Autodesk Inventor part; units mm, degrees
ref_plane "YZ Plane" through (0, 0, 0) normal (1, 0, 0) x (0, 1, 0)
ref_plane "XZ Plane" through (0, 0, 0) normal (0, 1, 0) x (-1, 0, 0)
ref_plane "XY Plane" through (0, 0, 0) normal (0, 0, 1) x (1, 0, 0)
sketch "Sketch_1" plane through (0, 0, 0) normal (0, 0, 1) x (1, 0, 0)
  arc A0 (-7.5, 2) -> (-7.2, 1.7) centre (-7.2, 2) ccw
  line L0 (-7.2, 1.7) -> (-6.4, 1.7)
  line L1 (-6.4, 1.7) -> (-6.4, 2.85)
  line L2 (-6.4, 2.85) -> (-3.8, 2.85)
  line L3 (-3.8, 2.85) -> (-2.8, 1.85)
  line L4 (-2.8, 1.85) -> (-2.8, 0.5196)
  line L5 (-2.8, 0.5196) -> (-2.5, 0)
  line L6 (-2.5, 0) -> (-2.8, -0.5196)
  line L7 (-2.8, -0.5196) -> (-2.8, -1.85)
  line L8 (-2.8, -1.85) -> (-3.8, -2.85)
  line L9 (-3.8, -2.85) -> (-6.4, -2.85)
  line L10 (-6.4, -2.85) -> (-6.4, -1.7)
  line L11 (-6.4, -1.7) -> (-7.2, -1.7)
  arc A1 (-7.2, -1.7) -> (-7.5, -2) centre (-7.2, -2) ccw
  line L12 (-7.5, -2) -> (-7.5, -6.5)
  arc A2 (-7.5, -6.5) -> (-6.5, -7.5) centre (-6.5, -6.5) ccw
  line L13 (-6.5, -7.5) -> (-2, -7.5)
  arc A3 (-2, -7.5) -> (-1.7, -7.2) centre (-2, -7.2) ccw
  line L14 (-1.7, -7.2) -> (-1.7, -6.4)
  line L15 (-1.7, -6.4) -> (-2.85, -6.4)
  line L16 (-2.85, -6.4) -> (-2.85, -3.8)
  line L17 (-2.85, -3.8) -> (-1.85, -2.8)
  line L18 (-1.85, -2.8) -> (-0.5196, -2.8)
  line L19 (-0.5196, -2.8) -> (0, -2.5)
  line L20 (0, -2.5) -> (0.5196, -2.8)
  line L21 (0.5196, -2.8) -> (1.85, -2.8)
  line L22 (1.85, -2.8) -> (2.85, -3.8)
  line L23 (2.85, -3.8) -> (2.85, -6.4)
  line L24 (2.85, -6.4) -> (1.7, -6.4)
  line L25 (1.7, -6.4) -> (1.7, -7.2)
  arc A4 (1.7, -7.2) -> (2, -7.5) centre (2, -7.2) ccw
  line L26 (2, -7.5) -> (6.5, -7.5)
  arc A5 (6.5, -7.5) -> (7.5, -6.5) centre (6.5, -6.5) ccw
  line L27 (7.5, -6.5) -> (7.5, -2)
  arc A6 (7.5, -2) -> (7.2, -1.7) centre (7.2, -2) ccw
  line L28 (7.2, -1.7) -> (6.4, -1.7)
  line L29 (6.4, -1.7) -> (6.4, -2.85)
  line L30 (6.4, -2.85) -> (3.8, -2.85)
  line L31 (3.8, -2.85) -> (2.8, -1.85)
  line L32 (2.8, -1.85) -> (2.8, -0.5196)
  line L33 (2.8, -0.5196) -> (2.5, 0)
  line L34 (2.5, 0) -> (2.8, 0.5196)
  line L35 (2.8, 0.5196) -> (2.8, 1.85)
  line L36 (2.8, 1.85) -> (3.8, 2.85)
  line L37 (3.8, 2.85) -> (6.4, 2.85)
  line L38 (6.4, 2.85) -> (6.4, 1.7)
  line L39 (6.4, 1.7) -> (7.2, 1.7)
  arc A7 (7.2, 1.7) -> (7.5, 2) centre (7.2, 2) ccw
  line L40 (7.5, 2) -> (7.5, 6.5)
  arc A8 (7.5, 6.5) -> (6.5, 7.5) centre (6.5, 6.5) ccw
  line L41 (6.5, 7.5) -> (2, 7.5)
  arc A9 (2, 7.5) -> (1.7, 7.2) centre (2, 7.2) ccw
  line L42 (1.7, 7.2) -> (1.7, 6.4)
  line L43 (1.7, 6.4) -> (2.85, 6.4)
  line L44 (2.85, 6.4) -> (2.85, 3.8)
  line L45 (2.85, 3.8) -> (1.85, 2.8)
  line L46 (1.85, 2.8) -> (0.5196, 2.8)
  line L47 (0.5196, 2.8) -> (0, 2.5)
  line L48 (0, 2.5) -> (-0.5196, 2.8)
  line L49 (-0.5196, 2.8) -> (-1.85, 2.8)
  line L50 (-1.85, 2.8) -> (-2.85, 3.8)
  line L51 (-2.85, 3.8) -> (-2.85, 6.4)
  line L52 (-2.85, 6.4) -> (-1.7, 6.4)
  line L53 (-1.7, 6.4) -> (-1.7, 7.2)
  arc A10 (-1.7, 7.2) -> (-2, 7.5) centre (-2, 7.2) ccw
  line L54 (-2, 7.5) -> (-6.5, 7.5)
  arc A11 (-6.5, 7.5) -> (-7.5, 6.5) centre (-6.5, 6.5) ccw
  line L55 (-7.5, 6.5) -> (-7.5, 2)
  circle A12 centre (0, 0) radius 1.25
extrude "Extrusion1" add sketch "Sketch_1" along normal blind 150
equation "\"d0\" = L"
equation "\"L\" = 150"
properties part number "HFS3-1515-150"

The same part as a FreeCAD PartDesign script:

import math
import FreeCAD as App
import Part
import Sketcher
Q = App.Units.Quantity

doc = App.newDocument("Part")
params = doc.addObject("Spreadsheet::Sheet", "Params")
for row, (alias, value) in enumerate([
    ("sketch1_radius", "1 mm"),
    ("sketch1_diameter", "2.5 mm"),
    ("sketch1_radius2", "0.3 mm"),
    ("sketch1_width", "0.8 mm"),
    ("sketch1_width2", "2.6 mm"),
    ("pad1_length", "150 mm"),
], start=1):
    params.set(f"A{row}", alias)
    params.set(f"B{row}", "=" + value)
    params.setAlias(f"B{row}", alias)

body = doc.addObject("PartDesign::Body", "Body")

# Sketch on XY plane
sketch1 = body.newObject("Sketcher::SketchObject", "Sketch")
sketch1.AttachmentSupport = (doc.getObject("XY_Plane"), [""])
sketch1.MapMode = "FlatFace"
sketch1.addGeometry(Part.LineSegment(App.Vector(-7.5, 6.5, 0), App.Vector(-7.5, 2, 0)), False)
sketch1.addGeometry(Part.ArcOfCircle(Part.Circle(App.Vector(-7.2, 2, 0), App.Vector(0, 0, 1), 0.3), math.radians(180), math.radians(270)), False)
sketch1.addGeometry(Part.LineSegment(App.Vector(-7.2, 1.7, 0), App.Vector(-6.4, 1.7, 0)), False)
sketch1.addGeometry(Part.LineSegment(App.Vector(-6.4, 1.7, 0), App.Vector(-6.4, 2.85, 0)), False)
sketch1.addGeometry(Part.LineSegment(App.Vector(-6.4, 2.85, 0), App.Vector(-3.8, 2.85, 0)), False)
sketch1.addGeometry(Part.LineSegment(App.Vector(-3.8, 2.85, 0), App.Vector(-2.8, 1.85, 0)), False)
sketch1.addGeometry(Part.LineSegment(App.Vector(-2.8, 1.85, 0), App.Vector(-2.8, 0.5196, 0)), False)
sketch1.addGeometry(Part.LineSegment(App.Vector(-2.8, 0.5196, 0), App.Vector(-2.5, 0, 0)), False)
sketch1.addGeometry(Part.LineSegment(App.Vector(-2.5, 0, 0), App.Vector(-2.8, -0.5196, 0)), False)
sketch1.addGeometry(Part.LineSegment(App.Vector(-2.8, -0.5196, 0), App.Vector(-2.8, -1.85, 0)), False)
sketch1.addGeometry(Part.LineSegment(App.Vector(-2.8, -1.85, 0), App.Vector(-3.8, -2.85, 0)), False)
sketch1.addGeometry(Part.LineSegment(App.Vector(-3.8, -2.85, 0), App.Vector(-6.4, -2.85, 0)), False)
sketch1.addGeometry(Part.LineSegment(App.Vector(-6.4, -2.85, 0), App.Vector(-6.4, -1.7, 0)), False)
sketch1.addGeometry(Part.LineSegment(App.Vector(-6.4, -1.7, 0), App.Vector(-7.2, -1.7, 0)), False)
sketch1.addGeometry(Part.ArcOfCircle(Part.Circle(App.Vector(-7.2, -2, 0), App.Vector(0, 0, 1), 0.3), math.radians(90), math.radians(180)), False)
sketch1.addGeometry(Part.LineSegment(App.Vector(-7.5, -2, 0), App.Vector(-7.5, -6.5, 0)), False)
sketch1.addGeometry(Part.ArcOfCircle(Part.Circle(App.Vector(-6.5, -6.5, 0), App.Vector(0, 0, 1), 1), math.radians(180), math.radians(270)), False)
sketch1.addGeometry(Part.LineSegment(App.Vector(-6.5, -7.5, 0), App.Vector(-2, -7.5, 0)), False)
sketch1.addGeometry(Part.ArcOfCircle(Part.Circle(App.Vector(-2, -7.2, 0), App.Vector(0, 0, 1), 0.3), math.radians(-90), math.radians(0)), False)
sketch1.addGeometry(Part.LineSegment(App.Vector(-1.7, -7.2, 0), App.Vector(-1.7, -6.4, 0)), False)
sketch1.addGeometry(Part.LineSegment(App.Vector(-1.7, -6.4, 0), App.Vector(-2.85, -6.4, 0)), False)
sketch1.addGeometry(Part.LineSegment(App.Vector(-2.85, -6.4, 0), App.Vector(-2.85, -3.8, 0)), False)
sketch1.addGeometry(Part.LineSegment(App.Vector(-2.85, -3.8, 0), App.Vector(-1.85, -2.8, 0)), False)
sketch1.addGeometry(Part.LineSegment(App.Vector(-1.85, -2.8, 0), App.Vector(-0.5196, -2.8, 0)), False)
sketch1.addGeometry(Part.LineSegment(App.Vector(-0.5196, -2.8, 0), App.Vector(0, -2.5, 0)), False)
sketch1.addGeometry(Part.LineSegment(App.Vector(0, -2.5, 0), App.Vector(0.5196, -2.8, 0)), False)
sketch1.addGeometry(Part.LineSegment(App.Vector(0.5196, -2.8, 0), App.Vector(1.85, -2.8, 0)), False)
sketch1.addGeometry(Part.LineSegment(App.Vector(1.85, -2.8, 0), App.Vector(2.85, -3.8, 0)), False)
sketch1.addGeometry(Part.LineSegment(App.Vector(2.85, -3.8, 0), App.Vector(2.85, -6.4, 0)), False)
sketch1.addGeometry(Part.LineSegment(App.Vector(2.85, -6.4, 0), App.Vector(1.7, -6.4, 0)), False)
sketch1.addGeometry(Part.LineSegment(App.Vector(1.7, -6.4, 0), App.Vector(1.7, -7.2, 0)), False)
sketch1.addGeometry(Part.ArcOfCircle(Part.Circle(App.Vector(2, -7.2, 0), App.Vector(0, 0, 1), 0.3), math.radians(180), math.radians(270)), False)
sketch1.addGeometry(Part.LineSegment(App.Vector(2, -7.5, 0), App.Vector(6.5, -7.5, 0)), False)
sketch1.addGeometry(Part.ArcOfCircle(Part.Circle(App.Vector(6.5, -6.5, 0), App.Vector(0, 0, 1), 1), math.radians(-90), math.radians(0)), False)
sketch1.addGeometry(Part.LineSegment(App.Vector(7.5, -6.5, 0), App.Vector(7.5, -2, 0)), False)
sketch1.addGeometry(Part.ArcOfCircle(Part.Circle(App.Vector(7.2, -2, 0), App.Vector(0, 0, 1), 0.3), math.radians(0), math.radians(90)), False)
sketch1.addGeometry(Part.LineSegment(App.Vector(7.2, -1.7, 0), App.Vector(6.4, -1.7, 0)), False)
sketch1.addGeometry(Part.LineSegment(App.Vector(6.4, -1.7, 0), App.Vector(6.4, -2.85, 0)), False)
sketch1.addGeometry(Part.LineSegment(App.Vector(6.4, -2.85, 0), App.Vector(3.8, -2.85, 0)), False)
sketch1.addGeometry(Part.LineSegment(App.Vector(3.8, -2.85, 0), App.Vector(2.8, -1.85, 0)), False)
sketch1.addGeometry(Part.LineSegment(App.Vector(2.8, -1.85, 0), App.Vector(2.8, -0.5196, 0)), False)
sketch1.addGeometry(Part.LineSegment(App.Vector(2.8, -0.5196, 0), App.Vector(2.5, 0, 0)), False)
sketch1.addGeometry(Part.LineSegment(App.Vector(2.5, 0, 0), App.Vector(2.8, 0.5196, 0)), False)
sketch1.addGeometry(Part.LineSegment(App.Vector(2.8, 0.5196, 0), App.Vector(2.8, 1.85, 0)), False)
sketch1.addGeometry(Part.LineSegment(App.Vector(2.8, 1.85, 0), App.Vector(3.8, 2.85, 0)), False)
sketch1.addGeometry(Part.LineSegment(App.Vector(3.8, 2.85, 0), App.Vector(6.4, 2.85, 0)), False)
sketch1.addGeometry(Part.LineSegment(App.Vector(6.4, 2.85, 0), App.Vector(6.4, 1.7, 0)), False)
sketch1.addGeometry(Part.LineSegment(App.Vector(6.4, 1.7, 0), App.Vector(7.2, 1.7, 0)), False)
sketch1.addGeometry(Part.ArcOfCircle(Part.Circle(App.Vector(7.2, 2, 0), App.Vector(0, 0, 1), 0.3), math.radians(-90), math.radians(0)), False)
sketch1.addGeometry(Part.LineSegment(App.Vector(7.5, 2, 0), App.Vector(7.5, 6.5, 0)), False)
sketch1.addGeometry(Part.ArcOfCircle(Part.Circle(App.Vector(6.5, 6.5, 0), App.Vector(0, 0, 1), 1), math.radians(0), math.radians(90)), False)
sketch1.addGeometry(Part.LineSegment(App.Vector(6.5, 7.5, 0), App.Vector(2, 7.5, 0)), False)
sketch1.addGeometry(Part.ArcOfCircle(Part.Circle(App.Vector(2, 7.2, 0), App.Vector(0, 0, 1), 0.3), math.radians(90), math.radians(180)), False)
sketch1.addGeometry(Part.LineSegment(App.Vector(1.7, 7.2, 0), App.Vector(1.7, 6.4, 0)), False)
sketch1.addGeometry(Part.LineSegment(App.Vector(1.7, 6.4, 0), App.Vector(2.85, 6.4, 0)), False)
sketch1.addGeometry(Part.LineSegment(App.Vector(2.85, 6.4, 0), App.Vector(2.85, 3.8, 0)), False)
sketch1.addGeometry(Part.LineSegment(App.Vector(2.85, 3.8, 0), App.Vector(1.85, 2.8, 0)), False)
sketch1.addGeometry(Part.LineSegment(App.Vector(1.85, 2.8, 0), App.Vector(0.5196, 2.8, 0)), False)
sketch1.addGeometry(Part.LineSegment(App.Vector(0.5196, 2.8, 0), App.Vector(0, 2.5, 0)), False)
sketch1.addGeometry(Part.LineSegment(App.Vector(0, 2.5, 0), App.Vector(-0.5196, 2.8, 0)), False)
sketch1.addGeometry(Part.LineSegment(App.Vector(-0.5196, 2.8, 0), App.Vector(-1.85, 2.8, 0)), False)
sketch1.addGeometry(Part.LineSegment(App.Vector(-1.85, 2.8, 0), App.Vector(-2.85, 3.8, 0)), False)
sketch1.addGeometry(Part.LineSegment(App.Vector(-2.85, 3.8, 0), App.Vector(-2.85, 6.4, 0)), False)
sketch1.addGeometry(Part.LineSegment(App.Vector(-2.85, 6.4, 0), App.Vector(-1.7, 6.4, 0)), False)
sketch1.addGeometry(Part.LineSegment(App.Vector(-1.7, 6.4, 0), App.Vector(-1.7, 7.2, 0)), False)
sketch1.addGeometry(Part.ArcOfCircle(Part.Circle(App.Vector(-2, 7.2, 0), App.Vector(0, 0, 1), 0.3), math.radians(0), math.radians(90)), False)
sketch1.addGeometry(Part.LineSegment(App.Vector(-2, 7.5, 0), App.Vector(-6.5, 7.5, 0)), False)
sketch1.addGeometry(Part.ArcOfCircle(Part.Circle(App.Vector(-6.5, 6.5, 0), App.Vector(0, 0, 1), 1), math.radians(90), math.radians(180)), False)
sketch1.addGeometry(Part.Circle(App.Vector(0, 0, 0), App.Vector(0, 0, 1), 1.25), False)
sketch1.addConstraint(Sketcher.Constraint("Tangent", 0, 2, 1, 1))
sketch1.addConstraint(Sketcher.Constraint("Tangent", 1, 2, 2, 1))
sketch1.addConstraint(Sketcher.Constraint("Coincident", 2, 2, 3, 1))
sketch1.addConstraint(Sketcher.Constraint("Coincident", 3, 2, 4, 1))
sketch1.addConstraint(Sketcher.Constraint("Coincident", 4, 2, 5, 1))
sketch1.addConstraint(Sketcher.Constraint("Coincident", 5, 2, 6, 1))
sketch1.addConstraint(Sketcher.Constraint("Coincident", 6, 2, 7, 1))
sketch1.addConstraint(Sketcher.Constraint("Coincident", 7, 2, 8, 1))
sketch1.addConstraint(Sketcher.Constraint("Coincident", 8, 2, 9, 1))
sketch1.addConstraint(Sketcher.Constraint("Coincident", 9, 2, 10, 1))
sketch1.addConstraint(Sketcher.Constraint("Coincident", 10, 2, 11, 1))
sketch1.addConstraint(Sketcher.Constraint("Coincident", 11, 2, 12, 1))
sketch1.addConstraint(Sketcher.Constraint("Coincident", 12, 2, 13, 1))
sketch1.addConstraint(Sketcher.Constraint("Tangent", 13, 2, 14, 1))
sketch1.addConstraint(Sketcher.Constraint("Tangent", 14, 2, 15, 1))
sketch1.addConstraint(Sketcher.Constraint("Tangent", 15, 2, 16, 1))
sketch1.addConstraint(Sketcher.Constraint("Tangent", 16, 2, 17, 1))
sketch1.addConstraint(Sketcher.Constraint("Tangent", 17, 2, 18, 1))
sketch1.addConstraint(Sketcher.Constraint("Tangent", 18, 2, 19, 1))
sketch1.addConstraint(Sketcher.Constraint("Coincident", 19, 2, 20, 1))
sketch1.addConstraint(Sketcher.Constraint("Coincident", 20, 2, 21, 1))
sketch1.addConstraint(Sketcher.Constraint("Coincident", 21, 2, 22, 1))
sketch1.addConstraint(Sketcher.Constraint("Coincident", 22, 2, 23, 1))
sketch1.addConstraint(Sketcher.Constraint("Coincident", 23, 2, 24, 1))
sketch1.addConstraint(Sketcher.Constraint("Coincident", 24, 2, 25, 1))
sketch1.addConstraint(Sketcher.Constraint("Coincident", 25, 2, 26, 1))
sketch1.addConstraint(Sketcher.Constraint("Coincident", 26, 2, 27, 1))
sketch1.addConstraint(Sketcher.Constraint("Coincident", 27, 2, 28, 1))
sketch1.addConstraint(Sketcher.Constraint("Coincident", 28, 2, 29, 1))
sketch1.addConstraint(Sketcher.Constraint("Coincident", 29, 2, 30, 1))
sketch1.addConstraint(Sketcher.Constraint("Tangent", 30, 2, 31, 1))
sketch1.addConstraint(Sketcher.Constraint("Tangent", 31, 2, 32, 1))
sketch1.addConstraint(Sketcher.Constraint("Tangent", 32, 2, 33, 1))
sketch1.addConstraint(Sketcher.Constraint("Tangent", 33, 2, 34, 1))
sketch1.addConstraint(Sketcher.Constraint("Tangent", 34, 2, 35, 1))
sketch1.addConstraint(Sketcher.Constraint("Tangent", 35, 2, 36, 1))
sketch1.addConstraint(Sketcher.Constraint("Coincident", 36, 2, 37, 1))
sketch1.addConstraint(Sketcher.Constraint("Coincident", 37, 2, 38, 1))
sketch1.addConstraint(Sketcher.Constraint("Coincident", 38, 2, 39, 1))
sketch1.addConstraint(Sketcher.Constraint("Coincident", 39, 2, 40, 1))
sketch1.addConstraint(Sketcher.Constraint("Coincident", 40, 2, 41, 1))
sketch1.addConstraint(Sketcher.Constraint("Coincident", 41, 2, 42, 1))
sketch1.addConstraint(Sketcher.Constraint("Coincident", 42, 2, 43, 1))
sketch1.addConstraint(Sketcher.Constraint("Coincident", 43, 2, 44, 1))
sketch1.addConstraint(Sketcher.Constraint("Coincident", 44, 2, 45, 1))
sketch1.addConstraint(Sketcher.Constraint("Coincident", 45, 2, 46, 1))
sketch1.addConstraint(Sketcher.Constraint("Coincident", 46, 2, 47, 1))
sketch1.addConstraint(Sketcher.Constraint("Tangent", 47, 2, 48, 1))
sketch1.addConstraint(Sketcher.Constraint("Tangent", 48, 2, 49, 1))
sketch1.addConstraint(Sketcher.Constraint("Tangent", 49, 2, 50, 1))
sketch1.addConstraint(Sketcher.Constraint("Tangent", 50, 2, 51, 1))
sketch1.addConstraint(Sketcher.Constraint("Tangent", 51, 2, 52, 1))
sketch1.addConstraint(Sketcher.Constraint("Tangent", 52, 2, 53, 1))
sketch1.addConstraint(Sketcher.Constraint("Coincident", 53, 2, 54, 1))
sketch1.addConstraint(Sketcher.Constraint("Coincident", 54, 2, 55, 1))
sketch1.addConstraint(Sketcher.Constraint("Coincident", 55, 2, 56, 1))
sketch1.addConstraint(Sketcher.Constraint("Coincident", 56, 2, 57, 1))
sketch1.addConstraint(Sketcher.Constraint("Coincident", 57, 2, 58, 1))
sketch1.addConstraint(Sketcher.Constraint("Coincident", 58, 2, 59, 1))
sketch1.addConstraint(Sketcher.Constraint("Coincident", 59, 2, 60, 1))
sketch1.addConstraint(Sketcher.Constraint("Coincident", 60, 2, 61, 1))
sketch1.addConstraint(Sketcher.Constraint("Coincident", 61, 2, 62, 1))
sketch1.addConstraint(Sketcher.Constraint("Coincident", 62, 2, 63, 1))
sketch1.addConstraint(Sketcher.Constraint("Coincident", 63, 2, 64, 1))
sketch1.addConstraint(Sketcher.Constraint("Tangent", 64, 2, 65, 1))
sketch1.addConstraint(Sketcher.Constraint("Tangent", 65, 2, 66, 1))
sketch1.addConstraint(Sketcher.Constraint("Tangent", 66, 2, 67, 1))
sketch1.addConstraint(Sketcher.Constraint("Tangent", 67, 2, 0, 1))
sketch1.addConstraint(Sketcher.Constraint("Vertical", 0))
sketch1.addConstraint(Sketcher.Constraint("Horizontal", 2))
sketch1.addConstraint(Sketcher.Constraint("Vertical", 3))
sketch1.addConstraint(Sketcher.Constraint("Horizontal", 4))
sketch1.addConstraint(Sketcher.Constraint("Vertical", 6))
sketch1.addConstraint(Sketcher.Constraint("Vertical", 9))
sketch1.addConstraint(Sketcher.Constraint("Horizontal", 11))
sketch1.addConstraint(Sketcher.Constraint("Vertical", 12))
sketch1.addConstraint(Sketcher.Constraint("Horizontal", 13))
sketch1.addConstraint(Sketcher.Constraint("Vertical", 15))
sketch1.addConstraint(Sketcher.Constraint("Horizontal", 17))
sketch1.addConstraint(Sketcher.Constraint("Vertical", 19))
sketch1.addConstraint(Sketcher.Constraint("Horizontal", 20))
sketch1.addConstraint(Sketcher.Constraint("Vertical", 21))
sketch1.addConstraint(Sketcher.Constraint("Horizontal", 23))
sketch1.addConstraint(Sketcher.Constraint("Horizontal", 26))
sketch1.addConstraint(Sketcher.Constraint("Vertical", 28))
sketch1.addConstraint(Sketcher.Constraint("Horizontal", 29))
sketch1.addConstraint(Sketcher.Constraint("Vertical", 30))
sketch1.addConstraint(Sketcher.Constraint("Horizontal", 32))
sketch1.addConstraint(Sketcher.Constraint("Vertical", 34))
sketch1.addConstraint(Sketcher.Constraint("Horizontal", 36))
sketch1.addConstraint(Sketcher.Constraint("Vertical", 37))
sketch1.addConstraint(Sketcher.Constraint("Horizontal", 38))
sketch1.addConstraint(Sketcher.Constraint("Vertical", 40))
sketch1.addConstraint(Sketcher.Constraint("Vertical", 43))
sketch1.addConstraint(Sketcher.Constraint("Horizontal", 45))
sketch1.addConstraint(Sketcher.Constraint("Vertical", 46))
sketch1.addConstraint(Sketcher.Constraint("Horizontal", 47))
sketch1.addConstraint(Sketcher.Constraint("Vertical", 49))
sketch1.addConstraint(Sketcher.Constraint("Horizontal", 51))
sketch1.addConstraint(Sketcher.Constraint("Vertical", 53))
sketch1.addConstraint(Sketcher.Constraint("Horizontal", 54))
sketch1.addConstraint(Sketcher.Constraint("Vertical", 55))
sketch1.addConstraint(Sketcher.Constraint("Horizontal", 57))
sketch1.addConstraint(Sketcher.Constraint("Horizontal", 60))
sketch1.addConstraint(Sketcher.Constraint("Vertical", 62))
sketch1.addConstraint(Sketcher.Constraint("Horizontal", 63))
sketch1.addConstraint(Sketcher.Constraint("Vertical", 64))
sketch1.addConstraint(Sketcher.Constraint("Horizontal", 66))
sketch1.addConstraint(Sketcher.Constraint("Coincident", 68, 3, -1, 1))
sketch1.addConstraint(Sketcher.Constraint("Equal", 1, 14))
sketch1.addConstraint(Sketcher.Constraint("Equal", 14, 18))
sketch1.addConstraint(Sketcher.Constraint("Equal", 18, 31))
sketch1.addConstraint(Sketcher.Constraint("Equal", 16, 33))
sketch1.addConstraint(Sketcher.Constraint("Equal", 31, 35))
sketch1.addConstraint(Sketcher.Constraint("Equal", 35, 48))
sketch1.addConstraint(Sketcher.Constraint("Equal", 33, 50))
sketch1.addConstraint(Sketcher.Constraint("Equal", 48, 52))
sketch1.addConstraint(Sketcher.Constraint("Equal", 52, 65))
sketch1.addConstraint(Sketcher.Constraint("Equal", 50, 67))
sketch1.addConstraint(Sketcher.Constraint("Symmetric", 1, 3, 35, 3, -1, 1))
sketch1.addConstraint(Sketcher.Constraint("Symmetric", 14, 3, 48, 3, -1, 1))
sketch1.addConstraint(Sketcher.Constraint("Symmetric", 18, 3, 52, 3, -1, 1))
sketch1.addConstraint(Sketcher.Constraint("Symmetric", 31, 3, 65, 3, -1, 1))
sketch1.addConstraint(Sketcher.Constraint("Symmetric", 3, 2, 37, 2, -1, 1))
sketch1.addConstraint(Sketcher.Constraint("Symmetric", 5, 2, 39, 2, -1, 1))
sketch1.addConstraint(Sketcher.Constraint("Symmetric", 7, 2, 41, 2, -1, 1))
sketch1.addConstraint(Sketcher.Constraint("Symmetric", 8, 2, 42, 2, -1, 1))
sketch1.addConstraint(Sketcher.Constraint("Symmetric", 10, 2, 44, 2, -1, 1))
sketch1.addConstraint(Sketcher.Constraint("Symmetric", 20, 2, 54, 2, -1, 1))
sketch1.addConstraint(Sketcher.Constraint("Symmetric", 22, 2, 56, 2, -1, 1))
sketch1.addConstraint(Sketcher.Constraint("Symmetric", 24, 2, 58, 2, -1, 1))
sketch1.addConstraint(Sketcher.Constraint("Symmetric", 25, 2, 59, 2, -1, 1))
sketch1.addConstraint(Sketcher.Constraint("Symmetric", 27, 2, 61, 2, -1, 1))
sketch1.addConstraint(Sketcher.Constraint("Symmetric", 18, 3, 31, 3, -2))
sketch1.addConstraint(Sketcher.Constraint("Symmetric", 14, 3, 35, 3, -2))
sketch1.addConstraint(Sketcher.Constraint("Symmetric", 23, 2, 25, 2, -2))
sketch1.addConstraint(Sketcher.Constraint("Symmetric", 21, 2, 27, 2, -2))
sketch1.addConstraint(Sketcher.Constraint("Symmetric", 11, 2, 37, 2, -2))
sketch1.addConstraint(Sketcher.Constraint("Symmetric", 9, 2, 39, 2, -2))
sketch1.addConstraint(Sketcher.Constraint("PointOnObject", 7, 2, -1))
sketch1.addConstraint(Sketcher.Constraint("PointOnObject", 24, 2, -2))
sketch1.addConstraint(Sketcher.Constraint("Perpendicular", 5, 10))
sketch1.addConstraint(Sketcher.Constraint("Parallel", 10, 22))
sketch1.addConstraint(Sketcher.Constraint("Perpendicular", 7, 24))
sketch1.addConstraint(Sketcher.Constraint("Perpendicular", 8, 25))
sketch1.addConstraint(Sketcher.Constraint("Perpendicular", 22, 27))
sketch1.addConstraint(Sketcher.Constraint("Parallel", 27, 39))
sketch1.addConstraint(Sketcher.Constraint("Perpendicular", 24, 41))
sketch1.addConstraint(Sketcher.Constraint("Perpendicular", 39, 44))
sketch1.addConstraint(Sketcher.Constraint("Parallel", 44, 56))
sketch1.addConstraint(Sketcher.Constraint("Perpendicular", 41, 58))
sketch1.addConstraint(Sketcher.Constraint("Perpendicular", 56, 61))
sketch1.addConstraint(Sketcher.Constraint("Horizontal", 20, 2, 28, 2))
sketch1.addConstraint(Sketcher.Constraint("Horizontal", 54, 2, 62, 2))
sketch1.addConstraint(Sketcher.Constraint("Vertical", 4, 2, 10, 2))
sketch1.addConstraint(Sketcher.Constraint("Vertical", 37, 2, 45, 2))
sketch1.addConstraint(Sketcher.Constraint("Equal", 66, 0))
sketch1.addConstraint(Sketcher.Constraint("Equal", 63, 3))
sketch1.addConstraint(Sketcher.Constraint("Equal", 60, 6))
sketch1.addConstraint(Sketcher.Constraint("Equal", 47, 19))
sketch1.addConstraint(Sketcher.Constraint("Equal", 45, 21))
sketch1.addConstraint(Sketcher.Constraint("Equal", 10, 22))
sketch1.addConstraint(Sketcher.Constraint("Equal", 8, 24))
sketch1.addConstraint(Sketcher.Constraint("Radius", 16, 1.0))
sketch1.addConstraint(Sketcher.Constraint("Diameter", 68, 2.5))
sketch1.addConstraint(Sketcher.Constraint("Radius", 1, 0.3))
sketch1.addConstraint(Sketcher.Constraint("Angle", 7, Q("-59.9993 deg")))
sketch1.addConstraint(Sketcher.Constraint("DistanceX", 2, 1, 2, 2, 0.8))
sketch1.addConstraint(Sketcher.Constraint("DistanceX", 4, 1, 4, 2, 2.6))
sketch1.addConstraint(Sketcher.Constraint("DistanceX", 17, 1, 17, 2, 4.5))
sketch1.addConstraint(Sketcher.Constraint("DistanceY", -1, 1, 1, 3, 2.0))
sketch1.addConstraint(Sketcher.Constraint("Distance", 7, 0.6))
sketch1.addConstraint(Sketcher.Constraint("DistanceX", 20, 2, 20, 1, 1.15))
sketch1.addConstraint(Sketcher.Constraint("DistanceX", 5, 2, -1, 1, 2.8))
sketch1.setExpression("Constraints[163]", "Params.sketch1_radius")
sketch1.setExpression("Constraints[164]", "Params.sketch1_diameter")
sketch1.setExpression("Constraints[165]", "Params.sketch1_radius2")
sketch1.setExpression("Constraints[167]", "Params.sketch1_width")
sketch1.setExpression("Constraints[168]", "Params.sketch1_width2")
pad1 = body.newObject("PartDesign::Pad", "Pad")
pad1.Profile = sketch1
pad1.setExpression("Length", "Params.pad1_length")

doc.recompute()
